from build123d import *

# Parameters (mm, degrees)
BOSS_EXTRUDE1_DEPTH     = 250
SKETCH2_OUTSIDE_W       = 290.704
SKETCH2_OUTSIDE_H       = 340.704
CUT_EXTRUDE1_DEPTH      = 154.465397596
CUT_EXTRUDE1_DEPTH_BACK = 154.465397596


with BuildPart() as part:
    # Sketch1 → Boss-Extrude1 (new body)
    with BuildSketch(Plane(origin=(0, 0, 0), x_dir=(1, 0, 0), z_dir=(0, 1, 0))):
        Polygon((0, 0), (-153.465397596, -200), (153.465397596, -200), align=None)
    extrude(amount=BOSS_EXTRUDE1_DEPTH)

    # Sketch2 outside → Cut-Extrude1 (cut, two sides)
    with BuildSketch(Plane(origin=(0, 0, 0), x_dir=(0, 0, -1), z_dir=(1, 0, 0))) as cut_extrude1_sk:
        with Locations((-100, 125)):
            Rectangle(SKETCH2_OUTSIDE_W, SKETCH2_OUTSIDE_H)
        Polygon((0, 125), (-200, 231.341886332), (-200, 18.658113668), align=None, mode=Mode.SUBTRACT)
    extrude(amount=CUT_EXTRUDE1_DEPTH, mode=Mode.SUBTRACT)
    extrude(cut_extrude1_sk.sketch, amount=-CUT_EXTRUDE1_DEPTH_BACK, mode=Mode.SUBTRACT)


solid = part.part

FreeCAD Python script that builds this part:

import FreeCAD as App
import Part
import Sketcher
Q = App.Units.Quantity


def add_polygon(sketch, points):
    """Adds a closed chain of lines whose ends are joined by coincident constraints."""
    first, n = sketch.GeometryCount, len(points)
    for a, b in zip(points, points[1:] + points[:1]):
        sketch.addGeometry(Part.LineSegment(App.Vector(*a, 0), App.Vector(*b, 0)), False)
    for i in range(n):
        sketch.addConstraint(Sketcher.Constraint("Coincident", first + i, 2, first + (i + 1) % n, 1))

doc = App.newDocument("Part")
body = doc.addObject("PartDesign::Body", "Body")

sketch1 = body.newObject("Sketcher::SketchObject", "Sketch")
sketch1.AttachmentSupport = (doc.getObject("XZ_Plane"), [""])
sketch1.MapMode = "FlatFace"
add_polygon(sketch1, [(0, 0), (-153, 200), (153, 200)])
sketch1.addConstraint(Sketcher.Constraint("Horizontal", 1))
sketch1.addConstraint(Sketcher.Constraint("Coincident", 2, 2, -1, 1))
sketch1.addConstraint(Sketcher.Constraint("Equal", 0, 2))
sketch1.addConstraint(Sketcher.Constraint("DistanceY", -1, 1, 0, 2, 200.0))
sketch1.addConstraint(Sketcher.Constraint("Angle", 0, Q("127.5 deg")))
pad1 = body.newObject("PartDesign::Pad", "Pad")
pad1.Profile = sketch1
pad1.Length = 250
pad1.Reversed = True

sketch2 = body.newObject("Sketcher::SketchObject", "Sketch001")
sketch2.AttachmentSupport = (doc.getObject("YZ_Plane"), [""])
sketch2.MapMode = "FlatFace"
add_polygon(sketch2, [(295, 245), (-45, 245), (-45, -45), (295, -45)])
add_polygon(sketch2, [(231, 200), (125, 0), (19, 200)])
sketch2.addConstraint(Sketcher.Constraint("Horizontal", 0))
sketch2.addConstraint(Sketcher.Constraint("Vertical", 1))
sketch2.addConstraint(Sketcher.Constraint("Horizontal", 2))
sketch2.addConstraint(Sketcher.Constraint("Vertical", 3))
sketch2.addConstraint(Sketcher.Constraint("Horizontal", 6))
sketch2.addConstraint(Sketcher.Constraint("PointOnObject", 4, 2, -1))
sketch2.addConstraint(Sketcher.Constraint("Equal", 4, 5))
sketch2.addConstraint(Sketcher.Constraint("Angle", 4, Q("-118 deg")))
sketch2.addConstraint(Sketcher.Constraint("DistanceX", -1, 1, 4, 2, 125.0))
sketch2.addConstraint(Sketcher.Constraint("DistanceY", -1, 1, 5, 2, 200.0))
sketch2.addConstraint(Sketcher.Constraint("DistanceX", 0, 2, 0, 1, 340.704))
sketch2.addConstraint(Sketcher.Constraint("DistanceY", 1, 2, 1, 1, 290.704))
sketch2.addConstraint(Sketcher.Constraint("DistanceX", 0, 2, -1, 1, 45.352))
sketch2.addConstraint(Sketcher.Constraint("DistanceY", -1, 1, 0, 2, 245.352))
pocket1 = body.newObject("PartDesign::Pocket", "Pocket")
pocket1.Profile = sketch2
pocket1.Type = "ThroughAll"
pocket1.Midplane = True

doc.recompute()
